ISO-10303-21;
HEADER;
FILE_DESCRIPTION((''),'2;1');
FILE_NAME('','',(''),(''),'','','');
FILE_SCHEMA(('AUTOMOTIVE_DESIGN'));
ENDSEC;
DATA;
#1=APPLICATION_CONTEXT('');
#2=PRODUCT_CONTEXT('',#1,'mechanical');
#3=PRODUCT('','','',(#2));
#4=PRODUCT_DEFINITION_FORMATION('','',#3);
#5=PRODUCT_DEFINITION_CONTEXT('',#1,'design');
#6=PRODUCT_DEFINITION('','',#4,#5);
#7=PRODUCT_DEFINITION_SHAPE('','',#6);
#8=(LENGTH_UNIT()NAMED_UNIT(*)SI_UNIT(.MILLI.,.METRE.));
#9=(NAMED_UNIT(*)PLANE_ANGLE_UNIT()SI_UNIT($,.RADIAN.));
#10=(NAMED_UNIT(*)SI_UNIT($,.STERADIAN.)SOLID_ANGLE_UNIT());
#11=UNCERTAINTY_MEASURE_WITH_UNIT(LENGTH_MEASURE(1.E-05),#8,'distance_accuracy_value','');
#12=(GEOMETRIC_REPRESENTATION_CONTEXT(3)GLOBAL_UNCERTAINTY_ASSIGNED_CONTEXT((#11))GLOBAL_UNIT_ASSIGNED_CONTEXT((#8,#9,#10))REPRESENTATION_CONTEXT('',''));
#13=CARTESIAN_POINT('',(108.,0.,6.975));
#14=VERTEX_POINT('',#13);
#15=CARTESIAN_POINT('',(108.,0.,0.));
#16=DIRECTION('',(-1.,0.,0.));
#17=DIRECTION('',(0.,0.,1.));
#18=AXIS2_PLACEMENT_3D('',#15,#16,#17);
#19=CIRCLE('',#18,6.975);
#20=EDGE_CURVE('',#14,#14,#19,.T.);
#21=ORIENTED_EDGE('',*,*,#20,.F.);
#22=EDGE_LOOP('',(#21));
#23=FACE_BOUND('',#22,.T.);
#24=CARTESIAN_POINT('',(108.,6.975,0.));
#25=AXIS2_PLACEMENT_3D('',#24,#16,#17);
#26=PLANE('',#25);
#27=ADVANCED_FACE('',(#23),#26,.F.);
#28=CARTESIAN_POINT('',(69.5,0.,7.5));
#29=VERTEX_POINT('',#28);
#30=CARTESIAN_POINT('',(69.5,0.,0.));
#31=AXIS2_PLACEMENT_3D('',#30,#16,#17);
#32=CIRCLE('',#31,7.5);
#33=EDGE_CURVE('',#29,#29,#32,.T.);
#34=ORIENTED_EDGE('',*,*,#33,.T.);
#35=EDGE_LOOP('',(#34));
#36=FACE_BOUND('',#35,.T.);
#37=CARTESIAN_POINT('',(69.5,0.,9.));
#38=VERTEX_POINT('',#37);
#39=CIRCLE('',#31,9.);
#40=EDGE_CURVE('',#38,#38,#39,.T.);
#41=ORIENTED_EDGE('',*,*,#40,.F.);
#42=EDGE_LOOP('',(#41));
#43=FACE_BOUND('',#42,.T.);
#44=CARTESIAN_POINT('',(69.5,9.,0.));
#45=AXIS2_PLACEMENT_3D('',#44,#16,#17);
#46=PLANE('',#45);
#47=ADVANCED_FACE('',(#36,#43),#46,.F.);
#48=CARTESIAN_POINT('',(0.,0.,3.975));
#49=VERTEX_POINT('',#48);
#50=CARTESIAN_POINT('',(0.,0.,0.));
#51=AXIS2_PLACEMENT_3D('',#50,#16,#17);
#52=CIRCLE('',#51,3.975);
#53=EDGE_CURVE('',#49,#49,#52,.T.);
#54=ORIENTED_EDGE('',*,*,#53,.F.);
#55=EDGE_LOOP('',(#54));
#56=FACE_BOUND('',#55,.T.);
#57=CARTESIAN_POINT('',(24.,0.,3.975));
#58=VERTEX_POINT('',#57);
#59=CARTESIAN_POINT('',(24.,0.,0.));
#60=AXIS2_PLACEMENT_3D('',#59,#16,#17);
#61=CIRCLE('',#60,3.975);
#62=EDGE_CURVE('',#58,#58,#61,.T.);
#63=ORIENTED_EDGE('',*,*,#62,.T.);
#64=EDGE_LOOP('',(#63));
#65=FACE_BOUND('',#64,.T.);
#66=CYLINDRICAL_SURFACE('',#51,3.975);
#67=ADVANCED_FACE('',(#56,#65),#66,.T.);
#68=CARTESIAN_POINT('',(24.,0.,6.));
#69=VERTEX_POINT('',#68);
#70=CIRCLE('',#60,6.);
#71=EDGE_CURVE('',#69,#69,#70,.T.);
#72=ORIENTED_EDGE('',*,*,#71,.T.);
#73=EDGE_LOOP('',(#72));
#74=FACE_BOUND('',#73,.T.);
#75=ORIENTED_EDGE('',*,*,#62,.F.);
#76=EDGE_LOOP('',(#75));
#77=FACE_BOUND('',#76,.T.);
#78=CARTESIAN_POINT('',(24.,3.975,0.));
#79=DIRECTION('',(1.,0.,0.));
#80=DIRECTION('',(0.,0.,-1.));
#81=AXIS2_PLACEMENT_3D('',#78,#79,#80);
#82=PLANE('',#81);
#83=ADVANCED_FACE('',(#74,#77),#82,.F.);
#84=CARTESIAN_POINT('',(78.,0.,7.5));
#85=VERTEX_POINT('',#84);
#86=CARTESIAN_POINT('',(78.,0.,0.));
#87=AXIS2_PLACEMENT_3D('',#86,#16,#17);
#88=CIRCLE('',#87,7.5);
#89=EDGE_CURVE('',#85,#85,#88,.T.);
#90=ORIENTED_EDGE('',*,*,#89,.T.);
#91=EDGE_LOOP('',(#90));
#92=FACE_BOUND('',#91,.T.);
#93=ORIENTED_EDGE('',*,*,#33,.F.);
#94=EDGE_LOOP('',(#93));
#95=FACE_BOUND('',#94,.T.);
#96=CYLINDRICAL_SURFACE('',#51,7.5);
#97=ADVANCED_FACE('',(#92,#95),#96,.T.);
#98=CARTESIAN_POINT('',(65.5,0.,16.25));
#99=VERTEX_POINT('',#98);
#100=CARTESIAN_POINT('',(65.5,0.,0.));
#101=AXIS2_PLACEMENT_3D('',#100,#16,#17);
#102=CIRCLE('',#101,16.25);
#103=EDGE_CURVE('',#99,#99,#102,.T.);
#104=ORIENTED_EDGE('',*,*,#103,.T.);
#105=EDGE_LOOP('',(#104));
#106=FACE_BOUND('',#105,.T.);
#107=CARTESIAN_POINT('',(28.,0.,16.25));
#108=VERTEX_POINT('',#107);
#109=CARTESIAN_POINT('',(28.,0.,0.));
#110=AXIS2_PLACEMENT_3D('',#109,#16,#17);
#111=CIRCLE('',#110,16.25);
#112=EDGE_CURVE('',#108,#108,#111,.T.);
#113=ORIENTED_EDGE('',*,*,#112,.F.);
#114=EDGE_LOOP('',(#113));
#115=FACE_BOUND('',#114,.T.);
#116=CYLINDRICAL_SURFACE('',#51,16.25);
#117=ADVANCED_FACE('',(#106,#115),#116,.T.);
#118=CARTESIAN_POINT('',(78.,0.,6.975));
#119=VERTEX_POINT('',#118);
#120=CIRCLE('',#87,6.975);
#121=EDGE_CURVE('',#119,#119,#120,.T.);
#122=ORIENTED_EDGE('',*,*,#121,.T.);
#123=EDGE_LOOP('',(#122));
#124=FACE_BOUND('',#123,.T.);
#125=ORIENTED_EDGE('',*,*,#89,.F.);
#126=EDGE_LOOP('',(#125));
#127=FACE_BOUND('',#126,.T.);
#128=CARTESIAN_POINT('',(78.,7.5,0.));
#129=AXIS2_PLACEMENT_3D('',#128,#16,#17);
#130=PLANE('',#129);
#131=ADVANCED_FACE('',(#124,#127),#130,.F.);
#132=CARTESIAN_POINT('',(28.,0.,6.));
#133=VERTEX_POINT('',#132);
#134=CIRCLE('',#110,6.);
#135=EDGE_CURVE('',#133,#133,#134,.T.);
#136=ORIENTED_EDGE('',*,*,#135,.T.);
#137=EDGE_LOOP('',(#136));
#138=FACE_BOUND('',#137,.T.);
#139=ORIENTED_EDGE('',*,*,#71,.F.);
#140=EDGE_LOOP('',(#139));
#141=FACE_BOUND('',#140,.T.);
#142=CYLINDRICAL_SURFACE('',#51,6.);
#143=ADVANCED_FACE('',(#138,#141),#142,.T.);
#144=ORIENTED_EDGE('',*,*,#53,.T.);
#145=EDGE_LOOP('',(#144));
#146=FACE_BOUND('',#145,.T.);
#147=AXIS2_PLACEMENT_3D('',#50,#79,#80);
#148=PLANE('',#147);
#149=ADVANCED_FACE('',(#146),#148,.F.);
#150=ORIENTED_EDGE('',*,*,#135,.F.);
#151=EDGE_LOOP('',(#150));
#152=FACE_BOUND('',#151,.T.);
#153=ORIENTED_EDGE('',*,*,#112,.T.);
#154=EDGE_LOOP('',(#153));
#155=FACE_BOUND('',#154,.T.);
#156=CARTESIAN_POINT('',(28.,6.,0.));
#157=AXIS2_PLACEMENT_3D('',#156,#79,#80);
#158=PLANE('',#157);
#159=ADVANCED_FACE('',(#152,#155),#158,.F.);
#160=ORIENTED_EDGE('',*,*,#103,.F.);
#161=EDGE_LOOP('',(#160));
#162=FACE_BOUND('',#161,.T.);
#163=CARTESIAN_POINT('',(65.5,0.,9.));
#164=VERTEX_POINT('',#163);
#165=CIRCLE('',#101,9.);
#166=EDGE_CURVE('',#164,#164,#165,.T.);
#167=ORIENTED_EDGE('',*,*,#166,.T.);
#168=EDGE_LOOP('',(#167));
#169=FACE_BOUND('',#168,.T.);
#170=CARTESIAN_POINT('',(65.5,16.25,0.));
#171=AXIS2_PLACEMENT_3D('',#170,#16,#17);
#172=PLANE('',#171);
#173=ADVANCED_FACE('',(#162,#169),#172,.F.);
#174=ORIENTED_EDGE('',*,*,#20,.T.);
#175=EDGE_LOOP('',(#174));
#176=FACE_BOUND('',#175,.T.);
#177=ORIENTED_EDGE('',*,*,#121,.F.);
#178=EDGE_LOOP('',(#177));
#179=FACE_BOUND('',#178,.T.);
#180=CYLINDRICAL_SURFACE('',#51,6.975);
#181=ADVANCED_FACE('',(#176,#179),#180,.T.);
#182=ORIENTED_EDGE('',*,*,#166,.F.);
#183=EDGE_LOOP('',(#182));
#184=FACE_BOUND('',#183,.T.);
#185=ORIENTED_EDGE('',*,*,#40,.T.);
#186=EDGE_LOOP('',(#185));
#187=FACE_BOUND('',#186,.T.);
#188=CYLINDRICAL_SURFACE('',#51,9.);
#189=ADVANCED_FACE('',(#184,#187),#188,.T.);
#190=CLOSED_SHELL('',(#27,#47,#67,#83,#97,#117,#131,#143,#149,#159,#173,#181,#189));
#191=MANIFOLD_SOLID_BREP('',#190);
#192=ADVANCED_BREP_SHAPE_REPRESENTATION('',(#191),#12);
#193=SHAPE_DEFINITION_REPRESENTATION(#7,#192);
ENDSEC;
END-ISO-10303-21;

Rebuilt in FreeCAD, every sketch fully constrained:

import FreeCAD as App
import Part
import Sketcher

V = App.Vector


def add_polygon(sketch, points):
    """Adds a closed chain of lines whose ends are joined by coincident constraints."""
    first, n = sketch.GeometryCount, len(points)
    for a, b in zip(points, points[1:] + points[:1]):
        sketch.addGeometry(Part.LineSegment(App.Vector(*a, 0), App.Vector(*b, 0)), False)
    for i in range(n):
        sketch.addConstraint(Sketcher.Constraint("Coincident", first + i, 2, first + (i + 1) % n, 1))

doc = App.newDocument("Part")
params = doc.addObject("Spreadsheet::Sheet", "Params")
for row, (alias, value) in enumerate([
    ("sketch1_width", "108 mm"),
    ("sketch1_width2", "30 mm"),
    ("sketch1_width3", "4 mm"),
    ("sketch1_width4", "24 mm"),
    ("sketch1_width5", "8.5 mm"),
    ("revolution_angle", "360 deg"),
], start=1):
    params.set(f"A{row}", alias)
    params.set(f"B{row}", "=" + value)
    params.setAlias(f"B{row}", alias)

body = doc.addObject("PartDesign::Body", "Body")

# Sketch on XY plane
sketch1 = body.newObject("Sketcher::SketchObject", "Sketch")
sketch1.AttachmentSupport = (doc.getObject("XY_Plane"), [""])
sketch1.MapMode = "FlatFace"
add_polygon(sketch1, [(0, 4), (0, 0), (108, 0), (108, 7), (78, 7), (78, 7.5), (69.5, 7.5), (69.5, 9), (65.5, 9), (65.5, 16.2), (28, 16.2), (28, 6), (24, 6), (24, 4)])  # lines 0-13
sketch1.addConstraint([
    Sketcher.Constraint("Vertical", 0),
    Sketcher.Constraint("Horizontal", 1),
    Sketcher.Constraint("Vertical", 2),
    Sketcher.Constraint("Horizontal", 3),
    Sketcher.Constraint("Vertical", 4),
    Sketcher.Constraint("Horizontal", 5),
    Sketcher.Constraint("Vertical", 6),
    Sketcher.Constraint("Horizontal", 7),
    Sketcher.Constraint("Vertical", 8),
    Sketcher.Constraint("Horizontal", 9),
    Sketcher.Constraint("Vertical", 10),
    Sketcher.Constraint("Horizontal", 11),
    Sketcher.Constraint("Vertical", 12),
    Sketcher.Constraint("Horizontal", 13),
    Sketcher.Constraint("Coincident", 0, 2, -1, 1),
    Sketcher.Constraint("Equal", 7, 11),
    Sketcher.Constraint("DistanceX", 1, 1, 1, 2, 108.0),
    Sketcher.Constraint("DistanceX", 3, 2, 3, 1, 30.0),
    Sketcher.Constraint("DistanceX", 7, 2, 7, 1, 4.0),
    Sketcher.Constraint("DistanceX", 13, 2, 13, 1, 24.0),
    Sketcher.Constraint("DistanceX", 5, 2, 5, 1, 8.5),
    Sketcher.Constraint("DistanceY", 6, 1, 6, 2, 1.5),
    Sketcher.Constraint("DistanceY", -1, 1, 6, 2, 9.0),
    Sketcher.Constraint("DistanceY", -1, 1, 10, 2, 6.0),
    Sketcher.Constraint("DistanceY", 8, 1, 8, 2, 7.25),
    Sketcher.Constraint("DistanceY", 0, 2, 0, 1, 3.975),
    Sketcher.Constraint("DistanceY", 2, 1, 2, 2, 6.975),
])
sketch1.setExpression("Constraints[30]", "Params.sketch1_width")
sketch1.setExpression("Constraints[31]", "Params.sketch1_width2")
sketch1.setExpression("Constraints[32]", "Params.sketch1_width3")
sketch1.setExpression("Constraints[33]", "Params.sketch1_width4")
sketch1.setExpression("Constraints[34]", "Params.sketch1_width5")
revolution = body.newObject("PartDesign::Revolution", "Revolution")
revolution.Profile = sketch1
revolution.ReferenceAxis = (sketch1, ["H_Axis"])
revolution.setExpression("Angle", "Params.revolution_angle")

doc.recompute()
